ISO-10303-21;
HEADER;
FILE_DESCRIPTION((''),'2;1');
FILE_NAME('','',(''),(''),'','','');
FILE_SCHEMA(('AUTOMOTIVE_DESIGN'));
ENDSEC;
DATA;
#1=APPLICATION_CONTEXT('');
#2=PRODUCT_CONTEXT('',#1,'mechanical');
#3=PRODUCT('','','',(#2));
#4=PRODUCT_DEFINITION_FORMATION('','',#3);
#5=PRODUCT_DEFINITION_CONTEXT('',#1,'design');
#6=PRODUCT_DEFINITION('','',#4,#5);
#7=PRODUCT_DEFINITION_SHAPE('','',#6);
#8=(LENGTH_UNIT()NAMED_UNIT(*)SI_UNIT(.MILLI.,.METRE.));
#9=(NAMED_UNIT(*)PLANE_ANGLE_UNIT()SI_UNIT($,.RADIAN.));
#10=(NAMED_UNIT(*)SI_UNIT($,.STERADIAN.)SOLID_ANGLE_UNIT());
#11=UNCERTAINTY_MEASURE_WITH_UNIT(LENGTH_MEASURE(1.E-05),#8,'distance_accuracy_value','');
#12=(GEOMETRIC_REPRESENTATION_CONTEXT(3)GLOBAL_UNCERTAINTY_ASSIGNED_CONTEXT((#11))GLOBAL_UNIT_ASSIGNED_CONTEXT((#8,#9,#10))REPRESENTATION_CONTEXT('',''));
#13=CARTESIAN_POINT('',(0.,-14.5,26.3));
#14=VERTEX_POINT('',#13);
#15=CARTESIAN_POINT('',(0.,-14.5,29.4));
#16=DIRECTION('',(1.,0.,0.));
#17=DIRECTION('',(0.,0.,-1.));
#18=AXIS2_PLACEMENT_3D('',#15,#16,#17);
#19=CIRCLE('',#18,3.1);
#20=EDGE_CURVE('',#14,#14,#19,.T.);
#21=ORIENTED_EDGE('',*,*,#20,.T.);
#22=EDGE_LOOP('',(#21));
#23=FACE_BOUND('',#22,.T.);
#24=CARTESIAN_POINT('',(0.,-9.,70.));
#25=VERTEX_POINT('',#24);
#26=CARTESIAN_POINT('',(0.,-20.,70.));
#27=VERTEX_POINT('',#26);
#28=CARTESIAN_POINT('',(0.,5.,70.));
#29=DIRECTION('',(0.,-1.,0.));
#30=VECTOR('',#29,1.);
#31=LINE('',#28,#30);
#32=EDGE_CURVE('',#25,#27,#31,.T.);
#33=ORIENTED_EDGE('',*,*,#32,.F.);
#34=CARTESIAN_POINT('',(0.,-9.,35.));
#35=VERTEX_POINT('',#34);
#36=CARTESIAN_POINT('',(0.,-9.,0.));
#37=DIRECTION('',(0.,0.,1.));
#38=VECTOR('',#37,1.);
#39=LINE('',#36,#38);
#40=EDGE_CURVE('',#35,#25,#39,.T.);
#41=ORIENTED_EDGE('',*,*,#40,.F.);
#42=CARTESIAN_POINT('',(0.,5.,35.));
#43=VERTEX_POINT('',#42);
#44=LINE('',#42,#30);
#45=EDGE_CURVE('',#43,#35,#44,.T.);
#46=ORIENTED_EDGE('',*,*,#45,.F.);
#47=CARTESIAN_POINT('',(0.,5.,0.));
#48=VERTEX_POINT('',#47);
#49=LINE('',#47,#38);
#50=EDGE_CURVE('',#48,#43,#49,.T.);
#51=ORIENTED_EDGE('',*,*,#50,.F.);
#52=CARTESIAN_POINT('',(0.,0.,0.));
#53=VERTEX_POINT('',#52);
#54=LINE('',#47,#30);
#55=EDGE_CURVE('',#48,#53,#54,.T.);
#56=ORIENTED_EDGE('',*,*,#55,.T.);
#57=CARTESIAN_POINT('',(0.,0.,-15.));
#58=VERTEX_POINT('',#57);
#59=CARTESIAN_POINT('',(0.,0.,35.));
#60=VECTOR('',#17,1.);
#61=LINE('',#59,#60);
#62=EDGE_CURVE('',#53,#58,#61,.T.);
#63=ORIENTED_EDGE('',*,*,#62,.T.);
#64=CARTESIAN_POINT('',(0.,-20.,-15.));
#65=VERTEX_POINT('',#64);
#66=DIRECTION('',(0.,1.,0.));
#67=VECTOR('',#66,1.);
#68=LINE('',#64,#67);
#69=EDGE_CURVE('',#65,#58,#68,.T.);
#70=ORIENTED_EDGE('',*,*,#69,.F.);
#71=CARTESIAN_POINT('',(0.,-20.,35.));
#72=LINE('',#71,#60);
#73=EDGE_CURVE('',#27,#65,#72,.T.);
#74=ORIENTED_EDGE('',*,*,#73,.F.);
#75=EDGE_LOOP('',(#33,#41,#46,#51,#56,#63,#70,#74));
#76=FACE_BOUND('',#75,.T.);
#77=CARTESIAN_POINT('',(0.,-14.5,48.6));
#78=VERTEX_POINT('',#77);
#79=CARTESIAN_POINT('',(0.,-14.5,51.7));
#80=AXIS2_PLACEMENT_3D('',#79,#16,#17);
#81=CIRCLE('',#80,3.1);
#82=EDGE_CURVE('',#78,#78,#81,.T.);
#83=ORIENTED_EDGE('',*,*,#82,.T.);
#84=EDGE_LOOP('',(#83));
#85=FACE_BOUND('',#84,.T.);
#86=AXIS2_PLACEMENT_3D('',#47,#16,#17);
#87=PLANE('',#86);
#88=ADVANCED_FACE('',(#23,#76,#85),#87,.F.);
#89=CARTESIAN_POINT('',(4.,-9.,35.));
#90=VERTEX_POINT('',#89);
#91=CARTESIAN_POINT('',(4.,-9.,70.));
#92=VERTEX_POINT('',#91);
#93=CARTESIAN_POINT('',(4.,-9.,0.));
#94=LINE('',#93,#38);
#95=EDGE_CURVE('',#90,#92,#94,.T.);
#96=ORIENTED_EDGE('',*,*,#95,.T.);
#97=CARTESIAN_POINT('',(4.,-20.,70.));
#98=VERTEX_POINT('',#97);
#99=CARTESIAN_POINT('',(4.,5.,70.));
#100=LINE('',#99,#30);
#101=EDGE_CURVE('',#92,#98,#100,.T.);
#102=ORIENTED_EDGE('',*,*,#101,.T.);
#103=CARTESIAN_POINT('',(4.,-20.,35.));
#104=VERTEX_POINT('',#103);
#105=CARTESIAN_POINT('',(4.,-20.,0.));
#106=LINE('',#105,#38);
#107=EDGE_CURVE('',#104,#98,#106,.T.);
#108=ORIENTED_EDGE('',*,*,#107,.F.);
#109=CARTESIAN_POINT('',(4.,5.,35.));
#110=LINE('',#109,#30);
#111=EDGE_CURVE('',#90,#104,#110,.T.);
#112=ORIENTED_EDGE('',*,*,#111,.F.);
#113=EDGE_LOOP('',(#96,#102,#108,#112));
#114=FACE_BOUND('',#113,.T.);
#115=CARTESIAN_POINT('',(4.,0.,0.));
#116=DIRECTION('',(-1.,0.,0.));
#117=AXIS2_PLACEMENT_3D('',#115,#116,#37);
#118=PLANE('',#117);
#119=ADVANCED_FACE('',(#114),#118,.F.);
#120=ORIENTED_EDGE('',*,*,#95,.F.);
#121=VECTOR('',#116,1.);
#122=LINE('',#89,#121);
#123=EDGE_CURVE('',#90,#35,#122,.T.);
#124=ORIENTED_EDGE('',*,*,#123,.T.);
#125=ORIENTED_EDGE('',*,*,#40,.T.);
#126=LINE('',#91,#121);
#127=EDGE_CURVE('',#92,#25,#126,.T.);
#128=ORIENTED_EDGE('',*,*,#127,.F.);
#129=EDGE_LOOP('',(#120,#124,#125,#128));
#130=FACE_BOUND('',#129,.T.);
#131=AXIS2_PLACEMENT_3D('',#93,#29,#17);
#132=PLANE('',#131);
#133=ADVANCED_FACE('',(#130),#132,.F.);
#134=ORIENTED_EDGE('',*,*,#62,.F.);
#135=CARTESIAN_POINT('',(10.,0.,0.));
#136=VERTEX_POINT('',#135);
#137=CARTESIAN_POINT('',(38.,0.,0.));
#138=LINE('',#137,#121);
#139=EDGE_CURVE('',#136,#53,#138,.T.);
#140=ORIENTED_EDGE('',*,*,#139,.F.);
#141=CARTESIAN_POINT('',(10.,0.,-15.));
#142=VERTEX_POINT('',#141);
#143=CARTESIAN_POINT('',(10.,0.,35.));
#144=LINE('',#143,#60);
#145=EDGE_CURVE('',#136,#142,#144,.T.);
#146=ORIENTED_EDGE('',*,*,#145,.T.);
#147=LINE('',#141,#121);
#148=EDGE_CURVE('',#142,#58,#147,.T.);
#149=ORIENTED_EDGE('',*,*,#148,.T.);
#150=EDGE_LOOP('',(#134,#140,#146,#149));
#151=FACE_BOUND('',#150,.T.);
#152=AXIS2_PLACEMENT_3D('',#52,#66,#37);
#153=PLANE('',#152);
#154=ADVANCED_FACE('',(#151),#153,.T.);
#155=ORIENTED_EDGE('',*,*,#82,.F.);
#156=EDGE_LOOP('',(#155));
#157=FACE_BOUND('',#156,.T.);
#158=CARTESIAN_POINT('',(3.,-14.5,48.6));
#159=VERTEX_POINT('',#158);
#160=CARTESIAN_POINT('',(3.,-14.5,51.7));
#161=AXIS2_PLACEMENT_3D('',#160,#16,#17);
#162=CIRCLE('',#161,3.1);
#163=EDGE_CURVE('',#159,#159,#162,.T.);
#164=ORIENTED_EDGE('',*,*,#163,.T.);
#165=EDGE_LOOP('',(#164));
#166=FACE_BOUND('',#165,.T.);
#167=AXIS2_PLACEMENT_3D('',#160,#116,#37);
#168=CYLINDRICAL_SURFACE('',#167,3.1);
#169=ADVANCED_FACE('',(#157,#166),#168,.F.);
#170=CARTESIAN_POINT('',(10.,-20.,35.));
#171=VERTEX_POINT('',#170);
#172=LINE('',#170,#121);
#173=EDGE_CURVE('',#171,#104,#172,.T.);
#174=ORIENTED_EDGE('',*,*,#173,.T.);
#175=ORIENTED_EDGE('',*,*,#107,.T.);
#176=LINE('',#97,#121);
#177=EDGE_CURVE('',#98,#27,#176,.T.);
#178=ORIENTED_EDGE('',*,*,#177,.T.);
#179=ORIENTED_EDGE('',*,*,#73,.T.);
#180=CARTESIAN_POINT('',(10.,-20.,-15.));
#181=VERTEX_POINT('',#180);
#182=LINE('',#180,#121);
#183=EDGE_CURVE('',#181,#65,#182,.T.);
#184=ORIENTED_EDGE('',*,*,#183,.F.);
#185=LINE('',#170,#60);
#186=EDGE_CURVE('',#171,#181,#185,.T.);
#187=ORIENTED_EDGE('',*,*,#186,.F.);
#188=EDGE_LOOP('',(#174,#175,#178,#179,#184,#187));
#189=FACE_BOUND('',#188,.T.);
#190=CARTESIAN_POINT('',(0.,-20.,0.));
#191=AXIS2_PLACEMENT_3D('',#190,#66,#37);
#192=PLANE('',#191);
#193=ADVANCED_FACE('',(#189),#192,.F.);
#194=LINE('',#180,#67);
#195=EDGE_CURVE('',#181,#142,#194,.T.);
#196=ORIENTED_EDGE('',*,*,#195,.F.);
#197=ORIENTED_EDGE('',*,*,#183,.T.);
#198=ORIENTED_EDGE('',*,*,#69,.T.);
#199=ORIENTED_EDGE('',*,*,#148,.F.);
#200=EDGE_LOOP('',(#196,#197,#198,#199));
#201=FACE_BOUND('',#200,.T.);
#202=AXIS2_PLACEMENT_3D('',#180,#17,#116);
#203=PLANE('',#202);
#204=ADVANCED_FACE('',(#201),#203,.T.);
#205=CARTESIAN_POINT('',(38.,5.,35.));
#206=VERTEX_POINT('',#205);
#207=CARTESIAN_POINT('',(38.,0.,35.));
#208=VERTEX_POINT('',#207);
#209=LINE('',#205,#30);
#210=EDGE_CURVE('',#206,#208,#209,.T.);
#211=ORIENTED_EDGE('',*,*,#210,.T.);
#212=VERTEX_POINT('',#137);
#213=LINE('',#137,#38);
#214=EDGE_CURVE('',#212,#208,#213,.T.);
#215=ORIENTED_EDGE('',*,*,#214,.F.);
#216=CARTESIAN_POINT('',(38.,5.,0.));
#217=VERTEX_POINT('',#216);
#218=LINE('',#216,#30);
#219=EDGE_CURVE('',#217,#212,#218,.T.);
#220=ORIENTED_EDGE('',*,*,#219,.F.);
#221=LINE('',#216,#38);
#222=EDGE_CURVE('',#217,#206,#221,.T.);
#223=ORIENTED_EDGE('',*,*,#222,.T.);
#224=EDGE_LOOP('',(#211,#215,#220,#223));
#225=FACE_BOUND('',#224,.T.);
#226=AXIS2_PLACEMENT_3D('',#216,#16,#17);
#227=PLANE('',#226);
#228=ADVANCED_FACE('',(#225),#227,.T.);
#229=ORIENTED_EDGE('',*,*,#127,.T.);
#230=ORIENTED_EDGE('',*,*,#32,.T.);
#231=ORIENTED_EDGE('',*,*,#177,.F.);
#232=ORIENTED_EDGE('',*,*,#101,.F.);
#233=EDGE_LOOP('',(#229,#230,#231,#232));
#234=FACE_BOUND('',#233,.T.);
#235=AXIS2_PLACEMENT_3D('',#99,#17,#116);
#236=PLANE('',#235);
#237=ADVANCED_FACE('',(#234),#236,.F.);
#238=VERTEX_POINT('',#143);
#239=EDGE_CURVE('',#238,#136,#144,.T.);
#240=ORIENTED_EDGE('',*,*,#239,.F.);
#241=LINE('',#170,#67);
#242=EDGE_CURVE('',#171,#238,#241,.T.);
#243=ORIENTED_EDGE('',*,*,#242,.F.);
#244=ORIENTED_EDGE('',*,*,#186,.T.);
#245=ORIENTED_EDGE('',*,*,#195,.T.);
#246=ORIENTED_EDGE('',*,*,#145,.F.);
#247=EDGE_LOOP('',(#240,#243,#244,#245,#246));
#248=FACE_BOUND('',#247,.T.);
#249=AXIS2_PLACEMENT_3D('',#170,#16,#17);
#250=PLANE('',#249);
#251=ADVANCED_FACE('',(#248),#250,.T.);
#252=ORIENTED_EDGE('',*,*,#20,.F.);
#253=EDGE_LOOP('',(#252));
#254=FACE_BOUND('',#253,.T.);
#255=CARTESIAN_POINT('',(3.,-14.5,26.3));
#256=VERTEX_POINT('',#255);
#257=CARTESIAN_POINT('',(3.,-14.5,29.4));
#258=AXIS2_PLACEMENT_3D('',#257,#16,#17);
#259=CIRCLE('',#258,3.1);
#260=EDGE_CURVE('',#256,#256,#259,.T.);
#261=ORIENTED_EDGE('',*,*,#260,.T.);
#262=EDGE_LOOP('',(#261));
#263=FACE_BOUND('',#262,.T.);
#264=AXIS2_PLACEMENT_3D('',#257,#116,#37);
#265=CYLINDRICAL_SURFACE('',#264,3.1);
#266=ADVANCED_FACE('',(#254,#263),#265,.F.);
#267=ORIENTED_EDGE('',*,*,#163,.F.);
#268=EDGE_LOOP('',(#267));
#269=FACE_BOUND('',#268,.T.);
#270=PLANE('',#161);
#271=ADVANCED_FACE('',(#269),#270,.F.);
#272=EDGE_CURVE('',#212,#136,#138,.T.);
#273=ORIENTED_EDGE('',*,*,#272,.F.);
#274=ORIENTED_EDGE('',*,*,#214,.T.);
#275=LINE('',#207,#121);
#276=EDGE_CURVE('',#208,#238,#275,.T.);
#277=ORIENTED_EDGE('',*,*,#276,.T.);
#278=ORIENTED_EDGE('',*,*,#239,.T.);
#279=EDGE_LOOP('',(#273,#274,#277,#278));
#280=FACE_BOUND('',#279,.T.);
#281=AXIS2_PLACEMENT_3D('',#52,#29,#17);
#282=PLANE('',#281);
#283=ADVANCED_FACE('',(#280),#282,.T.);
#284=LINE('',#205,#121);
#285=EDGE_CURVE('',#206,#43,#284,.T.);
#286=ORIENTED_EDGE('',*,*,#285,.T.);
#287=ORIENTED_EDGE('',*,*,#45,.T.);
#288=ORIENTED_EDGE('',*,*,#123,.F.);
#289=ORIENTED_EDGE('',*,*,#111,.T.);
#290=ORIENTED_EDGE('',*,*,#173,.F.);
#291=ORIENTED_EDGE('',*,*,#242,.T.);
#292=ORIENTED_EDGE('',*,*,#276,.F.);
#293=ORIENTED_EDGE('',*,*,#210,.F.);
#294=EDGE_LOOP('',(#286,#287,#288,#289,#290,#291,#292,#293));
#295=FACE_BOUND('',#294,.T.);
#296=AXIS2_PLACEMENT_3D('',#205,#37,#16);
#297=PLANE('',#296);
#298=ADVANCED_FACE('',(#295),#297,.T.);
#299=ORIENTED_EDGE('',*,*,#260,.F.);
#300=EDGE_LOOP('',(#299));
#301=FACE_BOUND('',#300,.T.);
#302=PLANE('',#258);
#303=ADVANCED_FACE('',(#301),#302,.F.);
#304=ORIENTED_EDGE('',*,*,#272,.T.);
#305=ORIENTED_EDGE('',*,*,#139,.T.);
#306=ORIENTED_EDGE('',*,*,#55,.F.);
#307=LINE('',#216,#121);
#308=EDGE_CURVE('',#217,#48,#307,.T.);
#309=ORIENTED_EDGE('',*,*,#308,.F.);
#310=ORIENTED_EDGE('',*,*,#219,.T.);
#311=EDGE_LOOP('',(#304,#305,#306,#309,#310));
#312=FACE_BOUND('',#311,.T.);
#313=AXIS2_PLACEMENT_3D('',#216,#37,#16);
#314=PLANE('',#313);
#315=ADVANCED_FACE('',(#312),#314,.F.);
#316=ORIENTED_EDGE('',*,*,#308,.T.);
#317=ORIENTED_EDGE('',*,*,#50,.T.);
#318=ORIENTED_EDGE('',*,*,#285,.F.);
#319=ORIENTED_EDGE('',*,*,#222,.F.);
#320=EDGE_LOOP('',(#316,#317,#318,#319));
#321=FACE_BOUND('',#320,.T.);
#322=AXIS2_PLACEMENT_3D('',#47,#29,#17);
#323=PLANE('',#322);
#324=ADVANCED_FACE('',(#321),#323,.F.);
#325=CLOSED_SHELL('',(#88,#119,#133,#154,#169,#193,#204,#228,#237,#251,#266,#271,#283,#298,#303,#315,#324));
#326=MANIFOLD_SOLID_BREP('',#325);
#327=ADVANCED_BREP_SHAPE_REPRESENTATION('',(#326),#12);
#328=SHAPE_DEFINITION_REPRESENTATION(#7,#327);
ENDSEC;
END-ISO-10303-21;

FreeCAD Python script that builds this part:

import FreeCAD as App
import Part
import Sketcher

V = App.Vector
Q = App.Units.Quantity

doc = App.newDocument("Part")
body = doc.addObject("PartDesign::Body", "Body")

# Sketch on XZ plane
sketch1 = body.newObject("Sketcher::SketchObject", "Sketch")
sketch1.AttachmentSupport = (doc.getObject("XZ_Plane"), [""])
sketch1.MapMode = "FlatFace"
sketch1.addGeometry([
    Part.LineSegment(V(0, 0, 0), V(0, 35, 0)),
    Part.LineSegment(V(0, 35, 0), V(38, 35, 0)),
    Part.LineSegment(V(38, 35, 0), V(38, 0, 0)),
    Part.LineSegment(V(38, 0, 0), V(0, 0, 0)),
], False)
sketch1.addConstraint([
    Sketcher.Constraint("Coincident", 0, 2, 1, 1),
    Sketcher.Constraint("Coincident", 1, 2, 2, 1),
    Sketcher.Constraint("Coincident", 2, 2, 3, 1),
    Sketcher.Constraint("Coincident", 3, 2, 0, 1),
    Sketcher.Constraint("Vertical", 0),
    Sketcher.Constraint("Horizontal", 1),
    Sketcher.Constraint("Vertical", 2),
    Sketcher.Constraint("Horizontal", 3),
    Sketcher.Constraint("Coincident", 3, 2, -1, 1),
    Sketcher.Constraint("DistanceX", 1, 1, 1, 2, Q("38 mm")),
    Sketcher.Constraint("DistanceY", 0, 1, 0, 2, Q("35 mm")),
])
pad1 = body.newObject("PartDesign::Pad", "Pad")
pad1.Profile = sketch1
pad1.Length = 5
pad1.Reversed = True

# Sketch on XZ plane
sketch2 = body.newObject("Sketcher::SketchObject", "Sketch001")
sketch2.AttachmentSupport = (doc.getObject("XZ_Plane"), [""])
sketch2.MapMode = "FlatFace"
sketch2.addGeometry([
    Part.LineSegment(V(0, -15, 0), V(0, 35, 0)),
    Part.LineSegment(V(0, 35, 0), V(10, 35, 0)),
    Part.LineSegment(V(10, 35, 0), V(10, -15, 0)),
    Part.LineSegment(V(10, -15, 0), V(0, -15, 0)),
], False)
sketch2.addConstraint([
    Sketcher.Constraint("Coincident", 0, 2, 1, 1),
    Sketcher.Constraint("Coincident", 1, 2, 2, 1),
    Sketcher.Constraint("Coincident", 2, 2, 3, 1),
    Sketcher.Constraint("Coincident", 3, 2, 0, 1),
    Sketcher.Constraint("Vertical", 0),
    Sketcher.Constraint("Horizontal", 1),
    Sketcher.Constraint("Vertical", 2),
    Sketcher.Constraint("Horizontal", 3),
    Sketcher.Constraint("PointOnObject", 0, 2, -2),
    Sketcher.Constraint("DistanceX", 1, 1, 1, 2, Q("10 mm")),
    Sketcher.Constraint("DistanceY", 0, 1, 0, 2, Q("50 mm")),
    Sketcher.Constraint("DistanceY", -1, 1, 0, 2, Q("35 mm")),
])
pad2 = body.newObject("PartDesign::Pad", "Pad001")
pad2.Profile = sketch2
pad2.Length = 20

# Sketch on YZ plane
sketch3 = body.newObject("Sketcher::SketchObject", "Sketch002")
sketch3.AttachmentSupport = (doc.getObject("YZ_Plane"), [""])
sketch3.MapMode = "FlatFace"
sketch3.addGeometry([
    Part.LineSegment(V(-9, 70, 0), V(-20, 70, 0)),
    Part.LineSegment(V(-20, 70, 0), V(-20, 35, 0)),
    Part.LineSegment(V(-20, 35, 0), V(-9, 35, 0)),
    Part.LineSegment(V(-9, 35, 0), V(-9, 70, 0)),
], False)
sketch3.addConstraint([
    Sketcher.Constraint("Coincident", 0, 2, 1, 1),
    Sketcher.Constraint("Coincident", 1, 2, 2, 1),
    Sketcher.Constraint("Coincident", 2, 2, 3, 1),
    Sketcher.Constraint("Coincident", 3, 2, 0, 1),
    Sketcher.Constraint("Horizontal", 0),
    Sketcher.Constraint("Vertical", 1),
    Sketcher.Constraint("Horizontal", 2),
    Sketcher.Constraint("Vertical", 3),
    Sketcher.Constraint("DistanceX", 0, 2, 0, 1, Q("11 mm")),
    Sketcher.Constraint("DistanceY", 1, 2, 1, 1, Q("35 mm")),
    Sketcher.Constraint("DistanceX", 0, 2, -1, 1, Q("20 mm")),
    Sketcher.Constraint("DistanceY", -1, 1, 0, 2, Q("70 mm")),
])
pad3 = body.newObject("PartDesign::Pad", "Pad002")
pad3.Profile = sketch3
pad3.Length = 4

# Sketch on YZ plane
sketch4 = body.newObject("Sketcher::SketchObject", "Sketch003")
sketch4.AttachmentSupport = (doc.getObject("YZ_Plane"), [""])
sketch4.MapMode = "FlatFace"
sketch4.addGeometry([
    Part.Circle(V(-14.5, 29.4, 0), V(0, 0, 1), 3.1),
    Part.Circle(V(-14.5, 51.7, 0), V(0, 0, 1), 3.1),
], False)
sketch4.addConstraint([
    Sketcher.Constraint("Equal", 0, 1),
    Sketcher.Constraint("Vertical", 0, 3, 1, 3),
    Sketcher.Constraint("Diameter", 0, Q("6.2 mm")),
    Sketcher.Constraint("DistanceX", 0, 3, -1, 1, Q("14.5 mm")),
    Sketcher.Constraint("DistanceY", -1, 1, 0, 3, Q("29.4 mm")),
    Sketcher.Constraint("DistanceY", -1, 1, 1, 3, Q("51.7 mm")),
])
pocket1 = body.newObject("PartDesign::Pocket", "Pocket")
pocket1.Profile = sketch4
pocket1.Length = 3
pocket1.Reversed = True

doc.recompute()
